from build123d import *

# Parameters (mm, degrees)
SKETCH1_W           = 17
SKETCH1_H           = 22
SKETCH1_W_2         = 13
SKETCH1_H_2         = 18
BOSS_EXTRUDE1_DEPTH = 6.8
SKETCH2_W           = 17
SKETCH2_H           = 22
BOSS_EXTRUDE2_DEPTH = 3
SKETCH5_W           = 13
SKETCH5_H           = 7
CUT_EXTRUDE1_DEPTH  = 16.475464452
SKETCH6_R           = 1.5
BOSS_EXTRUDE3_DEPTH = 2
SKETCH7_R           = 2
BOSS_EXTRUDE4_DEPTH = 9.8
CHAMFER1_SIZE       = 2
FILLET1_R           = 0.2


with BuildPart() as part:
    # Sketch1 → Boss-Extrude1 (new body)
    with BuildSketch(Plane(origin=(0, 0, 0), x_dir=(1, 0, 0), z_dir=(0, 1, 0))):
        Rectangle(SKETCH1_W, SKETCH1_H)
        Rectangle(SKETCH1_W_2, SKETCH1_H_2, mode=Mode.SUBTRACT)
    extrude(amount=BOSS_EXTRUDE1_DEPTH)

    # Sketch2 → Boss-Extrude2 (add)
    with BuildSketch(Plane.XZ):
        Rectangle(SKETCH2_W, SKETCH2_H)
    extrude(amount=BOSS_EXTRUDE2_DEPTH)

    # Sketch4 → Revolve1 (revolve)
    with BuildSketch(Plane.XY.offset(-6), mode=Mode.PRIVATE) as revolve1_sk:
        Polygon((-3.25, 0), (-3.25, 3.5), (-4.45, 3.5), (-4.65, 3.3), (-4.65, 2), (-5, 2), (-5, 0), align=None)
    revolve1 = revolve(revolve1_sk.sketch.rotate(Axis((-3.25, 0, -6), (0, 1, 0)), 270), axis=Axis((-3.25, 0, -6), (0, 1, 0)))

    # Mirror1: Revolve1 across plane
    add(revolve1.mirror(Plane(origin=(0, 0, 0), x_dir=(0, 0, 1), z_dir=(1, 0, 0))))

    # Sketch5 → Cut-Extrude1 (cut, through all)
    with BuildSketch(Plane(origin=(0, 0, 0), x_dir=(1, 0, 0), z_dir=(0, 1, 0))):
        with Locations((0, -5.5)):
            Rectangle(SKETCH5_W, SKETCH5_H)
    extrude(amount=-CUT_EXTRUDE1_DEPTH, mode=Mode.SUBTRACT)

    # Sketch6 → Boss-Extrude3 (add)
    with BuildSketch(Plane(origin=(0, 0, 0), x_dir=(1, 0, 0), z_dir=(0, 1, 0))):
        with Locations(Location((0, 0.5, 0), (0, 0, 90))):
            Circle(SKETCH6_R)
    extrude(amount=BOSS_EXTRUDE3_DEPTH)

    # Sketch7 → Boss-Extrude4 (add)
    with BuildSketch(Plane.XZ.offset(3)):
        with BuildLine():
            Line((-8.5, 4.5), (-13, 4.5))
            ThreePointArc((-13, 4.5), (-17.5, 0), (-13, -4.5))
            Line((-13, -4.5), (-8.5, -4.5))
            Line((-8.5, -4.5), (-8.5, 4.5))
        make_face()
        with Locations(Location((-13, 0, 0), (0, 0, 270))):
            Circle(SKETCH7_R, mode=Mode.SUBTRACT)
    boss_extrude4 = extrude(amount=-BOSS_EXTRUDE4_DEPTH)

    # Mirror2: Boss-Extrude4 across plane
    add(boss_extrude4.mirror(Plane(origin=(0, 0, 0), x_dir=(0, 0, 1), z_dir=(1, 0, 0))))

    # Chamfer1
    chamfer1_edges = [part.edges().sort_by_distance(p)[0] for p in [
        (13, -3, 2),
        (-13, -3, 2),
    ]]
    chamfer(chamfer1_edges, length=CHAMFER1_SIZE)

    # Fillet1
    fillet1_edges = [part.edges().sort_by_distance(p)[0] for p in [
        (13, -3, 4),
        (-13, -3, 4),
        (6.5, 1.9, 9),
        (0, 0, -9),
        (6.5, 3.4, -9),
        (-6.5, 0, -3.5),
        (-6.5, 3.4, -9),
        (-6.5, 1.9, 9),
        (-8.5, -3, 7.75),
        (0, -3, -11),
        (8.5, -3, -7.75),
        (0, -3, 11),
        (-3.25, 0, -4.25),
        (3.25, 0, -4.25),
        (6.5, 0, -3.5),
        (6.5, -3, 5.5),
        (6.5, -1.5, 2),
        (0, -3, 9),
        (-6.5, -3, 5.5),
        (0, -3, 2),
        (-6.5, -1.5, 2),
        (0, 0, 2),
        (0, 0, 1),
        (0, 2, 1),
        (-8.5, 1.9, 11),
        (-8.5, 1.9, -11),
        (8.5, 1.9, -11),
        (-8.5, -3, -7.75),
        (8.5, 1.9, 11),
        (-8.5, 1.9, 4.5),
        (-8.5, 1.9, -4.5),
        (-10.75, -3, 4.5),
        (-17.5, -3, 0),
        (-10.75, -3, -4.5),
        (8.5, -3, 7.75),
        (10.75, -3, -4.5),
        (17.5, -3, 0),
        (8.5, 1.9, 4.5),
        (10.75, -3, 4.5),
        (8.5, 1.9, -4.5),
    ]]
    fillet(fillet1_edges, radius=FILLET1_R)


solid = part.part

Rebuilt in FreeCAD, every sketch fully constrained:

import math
import FreeCAD as App
import Part
import Sketcher
from FreeCAD import Vector
Q = App.Units.Quantity


def edges_at(feature, points):
    """Names of the edges that pass closest to the given points."""
    edges = feature.Shape.Edges
    near = lambda p: min(range(len(edges)), key=lambda i: edges[i].distToShape(Part.Vertex(*p))[0])
    return sorted({f"Edge{near(p) + 1}" for p in points})

doc = App.newDocument("Part")
params = doc.addObject("Spreadsheet::Sheet", "Params")
for row, (alias, value) in enumerate([
    ("sketch1_width", "17 mm"),
    ("sketch1_width2", "13 mm"),
    ("sketch1_height", "22 mm"),
    ("sketch1_height2", "18 mm"),
    ("pad1_length", "6.8 mm"),
    ("sketch2_width", "17 mm"),
    ("sketch2_height", "22 mm"),
    ("pad2_length", "3 mm"),
    ("sketch3_height", "2 mm"),
    ("sketch3_width", "1.2 mm"),
    ("sketch3_height2", "3.5 mm"),
    ("sketch3_height3", "1.3 mm"),
    ("sketch3_width2", "0.35 mm"),
    ("revolution_angle", "360 deg"),
    ("sketch4_width", "13 mm"),
    ("sketch4_height", "7 mm"),
    ("sketch5_diameter", "3 mm"),
    ("pad3_length", "2 mm"),
    ("sketch6_diameter", "4 mm"),
    ("sketch6_radius", "4.5 mm"),
    ("sketch6_width", "4.5 mm"),
    ("pad4_length", "9.8 mm"),
    ("chamfer_size", "2 mm"),
    ("fillet_radius", "0.2 mm"),
], start=1):
    params.set(f"A{row}", alias)
    params.set(f"B{row}", "=" + value)
    params.setAlias(f"B{row}", alias)

body = doc.addObject("PartDesign::Body", "Body")

# Sketch on XZ plane
sketch1 = doc.addObject("Sketcher::SketchObject", "Sketch")
body.addObject(sketch1)
sketch1.AttachmentSupport = (doc.XZ_Plane, [""])
sketch1.MapMode = "FlatFace"
sketch1.addGeometry([
    Part.LineSegment(Vector(-8.5, -11, 0), Vector(-8.5, 11, 0)),  # 0
    Part.LineSegment(Vector(-8.5, 11, 0), Vector(8.5, 11, 0)),  # 1
    Part.LineSegment(Vector(8.5, 11, 0), Vector(8.5, -11, 0)),  # 2
    Part.LineSegment(Vector(8.5, -11, 0), Vector(-8.5, -11, 0)),  # 3
    Part.LineSegment(Vector(6.5, 9, 0), Vector(-6.5, 9, 0)),  # 4
    Part.LineSegment(Vector(-6.5, 9, 0), Vector(-6.5, -9, 0)),  # 5
    Part.LineSegment(Vector(-6.5, -9, 0), Vector(6.5, -9, 0)),  # 6
    Part.LineSegment(Vector(6.5, -9, 0), Vector(6.5, 9, 0)),  # 7
], False)
sketch1.addConstraint([
    Sketcher.Constraint("Coincident", 0, 2, 1, 1),
    Sketcher.Constraint("Coincident", 1, 2, 2, 1),
    Sketcher.Constraint("Coincident", 2, 2, 3, 1),
    Sketcher.Constraint("Coincident", 3, 2, 0, 1),
    Sketcher.Constraint("Coincident", 4, 2, 5, 1),
    Sketcher.Constraint("Coincident", 5, 2, 6, 1),
    Sketcher.Constraint("Coincident", 6, 2, 7, 1),
    Sketcher.Constraint("Coincident", 7, 2, 4, 1),
    Sketcher.Constraint("Vertical", 0),
    Sketcher.Constraint("Horizontal", 1),
    Sketcher.Constraint("Vertical", 2),
    Sketcher.Constraint("Horizontal", 3),
    Sketcher.Constraint("Horizontal", 4),
    Sketcher.Constraint("Vertical", 5),
    Sketcher.Constraint("Horizontal", 6),
    Sketcher.Constraint("Vertical", 7),
    Sketcher.Constraint("Symmetric", 0, 2, 2, 2, -1, 1),
    Sketcher.Constraint("Symmetric", 4, 2, 6, 2, -1, 1),
    Sketcher.Constraint("DistanceX", 1, 1, 1, 2, Q("17 mm")),
    Sketcher.Constraint("DistanceX", 4, 2, 4, 1, Q("13 mm")),
    Sketcher.Constraint("DistanceY", 0, 1, 0, 2, Q("22 mm")),
    Sketcher.Constraint("DistanceY", 5, 2, 5, 1, Q("18 mm")),
])
sketch1.setExpression("Constraints[18]", "Params.sketch1_width")
sketch1.setExpression("Constraints[19]", "Params.sketch1_width2")
sketch1.setExpression("Constraints[20]", "Params.sketch1_height")
sketch1.setExpression("Constraints[21]", "Params.sketch1_height2")
pad1 = doc.addObject("PartDesign::Pad", "Pad")
body.addObject(pad1)
pad1.Profile = sketch1
pad1.setExpression("Length", "Params.pad1_length")
pad1.Reversed = True

# Sketch on XZ plane
sketch2 = doc.addObject("Sketcher::SketchObject", "Sketch001")
body.addObject(sketch2)
sketch2.AttachmentSupport = (doc.XZ_Plane, [""])
sketch2.MapMode = "FlatFace"
sketch2.addGeometry([
    Part.LineSegment(Vector(-8.5, 11, 0), Vector(-8.5, -11, 0)),
    Part.LineSegment(Vector(-8.5, -11, 0), Vector(8.5, -11, 0)),
    Part.LineSegment(Vector(8.5, -11, 0), Vector(8.5, 11, 0)),
    Part.LineSegment(Vector(8.5, 11, 0), Vector(-8.5, 11, 0)),
], False)
sketch2.addConstraint([
    Sketcher.Constraint("Coincident", 0, 2, 1, 1),
    Sketcher.Constraint("Coincident", 1, 2, 2, 1),
    Sketcher.Constraint("Coincident", 2, 2, 3, 1),
    Sketcher.Constraint("Coincident", 3, 2, 0, 1),
    Sketcher.Constraint("Vertical", 0),
    Sketcher.Constraint("Horizontal", 1),
    Sketcher.Constraint("Vertical", 2),
    Sketcher.Constraint("Horizontal", 3),
    Sketcher.Constraint("Symmetric", 0, 2, 2, 2, -1, 1),
    Sketcher.Constraint("DistanceX", 1, 1, 1, 2, Q("17 mm")),
    Sketcher.Constraint("DistanceY", 0, 2, 0, 1, Q("22 mm")),
])
sketch2.setExpression("Constraints[9]", "Params.sketch2_width")
sketch2.setExpression("Constraints[10]", "Params.sketch2_height")
pad2 = doc.addObject("PartDesign::Pad", "Pad001")
body.addObject(pad2)
pad2.Profile = sketch2
pad2.setExpression("Length", "Params.pad2_length")

# Sketch on XY plane
sketch3 = doc.addObject("Sketcher::SketchObject", "Sketch002")
body.addObject(sketch3)
sketch3.AttachmentSupport = (doc.XY_Plane, [""])
sketch3.MapMode = "FlatFace"
sketch3.AttachmentOffset = App.Placement(Vector(0, 0, -6), App.Rotation())
sketch3.addGeometry([
    Part.LineSegment(Vector(-3.25, 0, 0), Vector(-3.25, 3.5, 0)),  # 0
    Part.LineSegment(Vector(-3.25, 3.5, 0), Vector(-4.45, 3.5, 0)),  # 1
    Part.LineSegment(Vector(-4.45, 3.5, 0), Vector(-4.65, 3.3, 0)),  # 2
    Part.LineSegment(Vector(-4.65, 3.3, 0), Vector(-4.65, 2, 0)),  # 3
    Part.LineSegment(Vector(-4.65, 2, 0), Vector(-5, 2, 0)),  # 4
    Part.LineSegment(Vector(-5, 2, 0), Vector(-5, 0, 0)),  # 5
    Part.LineSegment(Vector(-5, 0, 0), Vector(-3.25, 0, 0)),  # 6
], False)
sketch3.addGeometry(Part.LineSegment(Vector(-3.25, 0, 0), Vector(-3.25, 3.5, 0)), True)  # axis
sketch3.addConstraint([
    Sketcher.Constraint("Coincident", 0, 2, 1, 1),
    Sketcher.Constraint("Coincident", 1, 2, 2, 1),
    Sketcher.Constraint("Coincident", 2, 2, 3, 1),
    Sketcher.Constraint("Coincident", 3, 2, 4, 1),
    Sketcher.Constraint("Coincident", 4, 2, 5, 1),
    Sketcher.Constraint("Coincident", 5, 2, 6, 1),
    Sketcher.Constraint("Coincident", 6, 2, 0, 1),
    Sketcher.Constraint("Vertical", 0),
    Sketcher.Constraint("Horizontal", 1),
    Sketcher.Constraint("Vertical", 3),
    Sketcher.Constraint("Horizontal", 4),
    Sketcher.Constraint("Vertical", 5),
    Sketcher.Constraint("Horizontal", 6),
    Sketcher.Constraint("Vertical", 7),
    Sketcher.Constraint("Coincident", 7, 1, 6, 2),
    Sketcher.Constraint("PointOnObject", 5, 2, -1),
    Sketcher.Constraint("Horizontal", 1, 2, 7, 2),
    Sketcher.Constraint("DistanceY", 5, 2, 5, 1, Q("2 mm")),
    Sketcher.Constraint("Angle", 2, Q("-135 deg")),
    Sketcher.Constraint("DistanceX", 1, 2, 1, 1, Q("1.2 mm")),
    Sketcher.Constraint("DistanceY", 0, 1, 0, 2, Q("3.5 mm")),
    Sketcher.Constraint("DistanceY", 3, 2, 3, 1, Q("1.3 mm")),
    Sketcher.Constraint("DistanceX", 4, 2, -1, 1, Q("5 mm")),
    Sketcher.Constraint("DistanceX", 4, 2, 4, 1, Q("0.35 mm")),
])
sketch3.setExpression("Constraints[17]", "Params.sketch3_height")
sketch3.setExpression("Constraints[19]", "Params.sketch3_width")
sketch3.setExpression("Constraints[20]", "Params.sketch3_height2")
sketch3.setExpression("Constraints[21]", "Params.sketch3_height3")
sketch3.setExpression("Constraints[23]", "Params.sketch3_width2")
revolution = doc.addObject("PartDesign::Revolution", "Revolution")
body.addObject(revolution)
revolution.Profile = sketch3
revolution.ReferenceAxis = (sketch3, ["Axis0"])
revolution.setExpression("Angle", "Params.revolution_angle")
doc.recompute()

mirrored = doc.addObject("PartDesign::Mirrored", "Mirrored")
body.addObject(mirrored)
mirrored.Originals = [revolution]
mirrored.MirrorPlane = (doc.YZ_Plane, [""])
body.Tip = mirrored

# Sketch on XZ plane
sketch4 = doc.addObject("Sketcher::SketchObject", "Sketch003")
body.addObject(sketch4)
sketch4.AttachmentSupport = (doc.XZ_Plane, [""])
sketch4.MapMode = "FlatFace"
sketch4.addGeometry([
    Part.LineSegment(Vector(-6.5, 2, 0), Vector(-6.5, 9, 0)),
    Part.LineSegment(Vector(-6.5, 9, 0), Vector(6.5, 9, 0)),
    Part.LineSegment(Vector(6.5, 9, 0), Vector(6.5, 2, 0)),
    Part.LineSegment(Vector(6.5, 2, 0), Vector(-6.5, 2, 0)),
], False)
sketch4.addConstraint([
    Sketcher.Constraint("Coincident", 0, 2, 1, 1),
    Sketcher.Constraint("Coincident", 1, 2, 2, 1),
    Sketcher.Constraint("Coincident", 2, 2, 3, 1),
    Sketcher.Constraint("Coincident", 3, 2, 0, 1),
    Sketcher.Constraint("Vertical", 0),
    Sketcher.Constraint("Horizontal", 1),
    Sketcher.Constraint("Vertical", 2),
    Sketcher.Constraint("Horizontal", 3),
    Sketcher.Constraint("DistanceX", 1, 1, 1, 2, Q("13 mm")),
    Sketcher.Constraint("DistanceY", 0, 1, 0, 2, Q("7 mm")),
    Sketcher.Constraint("DistanceY", -1, 1, 0, 2, Q("9 mm")),
    Sketcher.Constraint("DistanceX", 0, 2, -1, 1, Q("6.5 mm")),
])
sketch4.setExpression("Constraints[8]", "Params.sketch4_width")
sketch4.setExpression("Constraints[9]", "Params.sketch4_height")
pocket1 = doc.addObject("PartDesign::Pocket", "Pocket")
body.addObject(pocket1)
pocket1.Profile = sketch4
pocket1.Type = "ThroughAll"
pocket1.Reversed = True

# Sketch on XZ plane
sketch5 = doc.addObject("Sketcher::SketchObject", "Sketch004")
body.addObject(sketch5)
sketch5.AttachmentSupport = (doc.XZ_Plane, [""])
sketch5.MapMode = "FlatFace"
sketch5.addGeometry(Part.Circle(Vector(0, -0.5, 0), Vector(0, 0, 1), 1.5), False)
sketch5.addConstraint([
    Sketcher.Constraint("PointOnObject", 0, 3, -2),
    Sketcher.Constraint("Diameter", 0, Q("3 mm")),
    Sketcher.Constraint("DistanceY", 0, 3, -1, 1, Q("0.5 mm")),
])
sketch5.setExpression("Constraints[1]", "Params.sketch5_diameter")
pad3 = doc.addObject("PartDesign::Pad", "Pad002")
body.addObject(pad3)
pad3.Profile = sketch5
pad3.setExpression("Length", "Params.pad3_length")
pad3.Reversed = True

# Sketch on XZ plane
sketch6 = doc.addObject("Sketcher::SketchObject", "Sketch005")
body.addObject(sketch6)
sketch6.AttachmentSupport = (doc.XZ_Plane, [""])
sketch6.MapMode = "FlatFace"
sketch6.AttachmentOffset = App.Placement(Vector(0, 0, 3), App.Rotation())
sketch6.addGeometry([
    Part.LineSegment(Vector(-8.5, 4.5, 0), Vector(-13, 4.5, 0)),  # 0
    Part.ArcOfCircle(Part.Circle(Vector(-13, 0, 0), Vector(0, 0, 1), 4.5), math.radians(90), math.radians(270)),  # 1
    Part.LineSegment(Vector(-13, -4.5, 0), Vector(-8.5, -4.5, 0)),  # 2
    Part.LineSegment(Vector(-8.5, -4.5, 0), Vector(-8.5, 4.5, 0)),  # 3
    Part.Circle(Vector(-13, 0, 0), Vector(0, 0, 1), 2),  # 4
], False)
sketch6.addConstraint([
    Sketcher.Constraint("Tangent", 0, 2, 1, 1),
    Sketcher.Constraint("Tangent", 1, 2, 2, 1),
    Sketcher.Constraint("Coincident", 2, 2, 3, 1),
    Sketcher.Constraint("Coincident", 3, 2, 0, 1),
    Sketcher.Constraint("Horizontal", 0),
    Sketcher.Constraint("Horizontal", 2),
    Sketcher.Constraint("Vertical", 3),
    Sketcher.Constraint("Coincident", 4, 3, 1, 3),
    Sketcher.Constraint("PointOnObject", 1, 3, -1),
    Sketcher.Constraint("Diameter", 4, Q("4 mm")),
    Sketcher.Constraint("Radius", 1, Q("4.5 mm")),
    Sketcher.Constraint("DistanceX", 0, 2, 0, 1, Q("4.5 mm")),
    Sketcher.Constraint("DistanceX", 1, 3, -1, 1, Q("13 mm")),
])
sketch6.setExpression("Constraints[9]", "Params.sketch6_diameter")
sketch6.setExpression("Constraints[10]", "Params.sketch6_radius")
sketch6.setExpression("Constraints[11]", "Params.sketch6_width")
pad4 = doc.addObject("PartDesign::Pad", "Pad003")
body.addObject(pad4)
pad4.Profile = sketch6
pad4.setExpression("Length", "Params.pad4_length")
pad4.Reversed = True
doc.recompute()

mirrored2 = doc.addObject("PartDesign::Mirrored", "Mirrored001")
body.addObject(mirrored2)
mirrored2.Originals = [pad4]
mirrored2.MirrorPlane = (doc.YZ_Plane, [""])
body.Tip = mirrored2
doc.recompute()

chamfer = doc.addObject("PartDesign::Chamfer", "Chamfer")
body.addObject(chamfer)
chamfer.Base = (mirrored2, edges_at(mirrored2, [(13, -3, 2), (-13, -3, 2)]))
chamfer.setExpression("Size", "Params.chamfer_size")
doc.recompute()

fillet = doc.addObject("PartDesign::Fillet", "Fillet")
body.addObject(fillet)
fillet.Base = (chamfer, edges_at(chamfer, [
    (13, -3, 4),
    (-13, -3, 4),
    (6.5, 1.9, 9),
    (0, 0, -9),
    (6.5, 3.4, -9),
    (-6.5, 0, -3.5),
    (-6.5, 3.4, -9),
    (-6.5, 1.9, 9),
    (-8.5, -3, 7.75),
    (0, -3, -11),
    (8.5, -3, -7.75),
    (0, -3, 11),
    (-3.25, 0, -4.25),
    (3.25, 0, -4.25),
    (6.5, 0, -3.5),
    (6.5, -3, 5.5),
    (6.5, -1.5, 2),
    (0, -3, 9),
    (-6.5, -3, 5.5),
    (0, -3, 2),
    (-6.5, -1.5, 2),
    (0, 0, 2),
    (0, 0, 1),
    (0, 2, 1),
    (-8.5, 1.9, 11),
    (-8.5, 1.9, -11),
    (8.5, 1.9, -11),
    (-8.5, -3, -7.75),
    (8.5, 1.9, 11),
    (-8.5, 1.9, 4.5),
    (-8.5, 1.9, -4.5),
    (-10.75, -3, 4.5),
    (-17.5, -3, 0),
    (-10.75, -3, -4.5),
    (8.5, -3, 7.75),
    (10.75, -3, -4.5),
    (17.5, -3, 0),
    (8.5, 1.9, 4.5),
    (10.75, -3, 4.5),
    (8.5, 1.9, -4.5),
]))
fillet.setExpression("Radius", "Params.fillet_radius")

doc.recompute()
